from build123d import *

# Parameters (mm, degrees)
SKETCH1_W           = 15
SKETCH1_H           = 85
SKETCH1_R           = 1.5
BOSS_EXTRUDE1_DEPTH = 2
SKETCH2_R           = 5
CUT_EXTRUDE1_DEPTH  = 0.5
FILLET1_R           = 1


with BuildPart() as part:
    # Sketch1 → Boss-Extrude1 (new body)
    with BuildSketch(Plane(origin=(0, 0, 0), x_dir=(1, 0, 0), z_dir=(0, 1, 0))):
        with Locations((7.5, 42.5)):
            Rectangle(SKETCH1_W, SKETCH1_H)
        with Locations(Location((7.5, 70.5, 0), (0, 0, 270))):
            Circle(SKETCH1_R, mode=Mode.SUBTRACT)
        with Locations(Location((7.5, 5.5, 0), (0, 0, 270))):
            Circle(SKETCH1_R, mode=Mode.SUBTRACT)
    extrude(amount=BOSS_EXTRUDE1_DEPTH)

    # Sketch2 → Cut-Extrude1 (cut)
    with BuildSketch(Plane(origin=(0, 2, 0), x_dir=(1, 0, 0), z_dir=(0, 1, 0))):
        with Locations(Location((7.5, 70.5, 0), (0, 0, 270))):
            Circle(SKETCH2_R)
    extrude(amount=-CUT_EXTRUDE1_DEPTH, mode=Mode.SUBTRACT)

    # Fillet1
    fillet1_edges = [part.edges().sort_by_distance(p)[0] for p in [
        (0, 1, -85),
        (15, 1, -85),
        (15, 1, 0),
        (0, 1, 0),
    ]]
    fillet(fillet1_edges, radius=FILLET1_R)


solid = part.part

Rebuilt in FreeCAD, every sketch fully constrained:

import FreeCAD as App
import Part
import Sketcher
Q = App.Units.Quantity


def edges_at(feature, points):
    """Names of the edges that pass closest to the given points."""
    edges = feature.Shape.Edges
    near = lambda p: min(range(len(edges)), key=lambda i: edges[i].distToShape(Part.Vertex(*p))[0])
    return sorted({f"Edge{near(p) + 1}" for p in points})


def add_polygon(sketch, points):
    """Adds a closed chain of lines whose ends are joined by coincident constraints."""
    first, n = sketch.GeometryCount, len(points)
    for a, b in zip(points, points[1:] + points[:1]):
        sketch.addGeometry(Part.LineSegment(App.Vector(*a, 0), App.Vector(*b, 0)), False)
    for i in range(n):
        sketch.addConstraint(Sketcher.Constraint("Coincident", first + i, 2, first + (i + 1) % n, 1))

doc = App.newDocument("Part")
params = doc.addObject("Spreadsheet::Sheet", "Params")
for row, (alias, value) in enumerate([
    ("sketch1_diameter", "3 mm"),
    ("sketch1_width", "15 mm"),
    ("sketch1_height", "85 mm"),
    ("pad1_length", "2 mm"),
    ("sketch2_diameter", "10 mm"),
    ("pocket1_length", "0.5 mm"),
    ("fillet_radius", "1 mm"),
], start=1):
    params.set(f"A{row}", alias)
    params.set(f"B{row}", "=" + value)
    params.setAlias(f"B{row}", alias)

body = doc.addObject("PartDesign::Body", "Body")

# Sketch on XZ plane
sketch1 = doc.addObject("Sketcher::SketchObject", "Sketch")
body.addObject(sketch1)
sketch1.AttachmentSupport = (doc.XZ_Plane, [""])
sketch1.MapMode = "FlatFace"
add_polygon(sketch1, [(0, -85), (0, 0), (15, 0), (15, -85)])  # lines 0-3
sketch1.addGeometry(Part.Circle(App.Vector(7.5, -5.5, 0), App.Vector(0, 0, 1), 1.5), False)  # 4
sketch1.addGeometry(Part.Circle(App.Vector(7.5, -70.5, 0), App.Vector(0, 0, 1), 1.5), False)  # 5
sketch1.addConstraint(Sketcher.Constraint("Vertical", 0))
sketch1.addConstraint(Sketcher.Constraint("Horizontal", 1))
sketch1.addConstraint(Sketcher.Constraint("Vertical", 2))
sketch1.addConstraint(Sketcher.Constraint("Horizontal", 3))
sketch1.addConstraint(Sketcher.Constraint("Coincident", 0, 2, -1, 1))
sketch1.addConstraint(Sketcher.Constraint("Equal", 4, 5))
sketch1.addConstraint(Sketcher.Constraint("Vertical", 4, 3, 5, 3))
sketch1.addConstraint(Sketcher.Constraint("Diameter", 4, Q("3 mm")))
sketch1.addConstraint(Sketcher.Constraint("DistanceX", 1, 1, 1, 2, Q("15 mm")))
sketch1.addConstraint(Sketcher.Constraint("DistanceY", 0, 1, 0, 2, Q("85 mm")))
sketch1.addConstraint(Sketcher.Constraint("DistanceY", 5, 3, 4, 3, Q("65 mm")))
sketch1.addConstraint(Sketcher.Constraint("DistanceX", -1, 1, 4, 3, Q("7.5 mm")))
sketch1.addConstraint(Sketcher.Constraint("DistanceY", 4, 3, -1, 1, Q("5.5 mm")))
sketch1.setExpression("Constraints[11]", "Params.sketch1_diameter")
sketch1.setExpression("Constraints[12]", "Params.sketch1_width")
sketch1.setExpression("Constraints[13]", "Params.sketch1_height")
pad1 = doc.addObject("PartDesign::Pad", "Pad")
body.addObject(pad1)
pad1.Profile = sketch1
pad1.setExpression("Length", "Params.pad1_length")
pad1.Reversed = True

# Sketch on XZ plane
sketch2 = doc.addObject("Sketcher::SketchObject", "Sketch001")
body.addObject(sketch2)
sketch2.AttachmentSupport = (doc.XZ_Plane, [""])
sketch2.MapMode = "FlatFace"
sketch2.AttachmentOffset = App.Placement(App.Vector(0, 0, -2), App.Rotation())
sketch2.addGeometry(Part.Circle(App.Vector(8, -70, 0), App.Vector(0, 0, 1), 5), False)
sketch2.addConstraint(Sketcher.Constraint("Diameter", 0, Q("10 mm")))
sketch2.addConstraint(Sketcher.Constraint("DistanceX", -1, 1, 0, 3, Q("7.5 mm")))
sketch2.addConstraint(Sketcher.Constraint("DistanceY", 0, 3, -1, 1, Q("70.5 mm")))
sketch2.setExpression("Constraints[0]", "Params.sketch2_diameter")
pocket1 = doc.addObject("PartDesign::Pocket", "Pocket")
body.addObject(pocket1)
pocket1.Profile = sketch2
pocket1.setExpression("Length", "Params.pocket1_length")
pocket1.Reversed = True
doc.recompute()

fillet = doc.addObject("PartDesign::Fillet", "Fillet")
body.addObject(fillet)
fillet.Base = (pocket1, edges_at(pocket1, [
    (0, 1, -85),
    (15, 1, -85),
    (15, 1, 0),
    (0, 1, 0),
]))
fillet.setExpression("Radius", "Params.fillet_radius")

doc.recompute()
